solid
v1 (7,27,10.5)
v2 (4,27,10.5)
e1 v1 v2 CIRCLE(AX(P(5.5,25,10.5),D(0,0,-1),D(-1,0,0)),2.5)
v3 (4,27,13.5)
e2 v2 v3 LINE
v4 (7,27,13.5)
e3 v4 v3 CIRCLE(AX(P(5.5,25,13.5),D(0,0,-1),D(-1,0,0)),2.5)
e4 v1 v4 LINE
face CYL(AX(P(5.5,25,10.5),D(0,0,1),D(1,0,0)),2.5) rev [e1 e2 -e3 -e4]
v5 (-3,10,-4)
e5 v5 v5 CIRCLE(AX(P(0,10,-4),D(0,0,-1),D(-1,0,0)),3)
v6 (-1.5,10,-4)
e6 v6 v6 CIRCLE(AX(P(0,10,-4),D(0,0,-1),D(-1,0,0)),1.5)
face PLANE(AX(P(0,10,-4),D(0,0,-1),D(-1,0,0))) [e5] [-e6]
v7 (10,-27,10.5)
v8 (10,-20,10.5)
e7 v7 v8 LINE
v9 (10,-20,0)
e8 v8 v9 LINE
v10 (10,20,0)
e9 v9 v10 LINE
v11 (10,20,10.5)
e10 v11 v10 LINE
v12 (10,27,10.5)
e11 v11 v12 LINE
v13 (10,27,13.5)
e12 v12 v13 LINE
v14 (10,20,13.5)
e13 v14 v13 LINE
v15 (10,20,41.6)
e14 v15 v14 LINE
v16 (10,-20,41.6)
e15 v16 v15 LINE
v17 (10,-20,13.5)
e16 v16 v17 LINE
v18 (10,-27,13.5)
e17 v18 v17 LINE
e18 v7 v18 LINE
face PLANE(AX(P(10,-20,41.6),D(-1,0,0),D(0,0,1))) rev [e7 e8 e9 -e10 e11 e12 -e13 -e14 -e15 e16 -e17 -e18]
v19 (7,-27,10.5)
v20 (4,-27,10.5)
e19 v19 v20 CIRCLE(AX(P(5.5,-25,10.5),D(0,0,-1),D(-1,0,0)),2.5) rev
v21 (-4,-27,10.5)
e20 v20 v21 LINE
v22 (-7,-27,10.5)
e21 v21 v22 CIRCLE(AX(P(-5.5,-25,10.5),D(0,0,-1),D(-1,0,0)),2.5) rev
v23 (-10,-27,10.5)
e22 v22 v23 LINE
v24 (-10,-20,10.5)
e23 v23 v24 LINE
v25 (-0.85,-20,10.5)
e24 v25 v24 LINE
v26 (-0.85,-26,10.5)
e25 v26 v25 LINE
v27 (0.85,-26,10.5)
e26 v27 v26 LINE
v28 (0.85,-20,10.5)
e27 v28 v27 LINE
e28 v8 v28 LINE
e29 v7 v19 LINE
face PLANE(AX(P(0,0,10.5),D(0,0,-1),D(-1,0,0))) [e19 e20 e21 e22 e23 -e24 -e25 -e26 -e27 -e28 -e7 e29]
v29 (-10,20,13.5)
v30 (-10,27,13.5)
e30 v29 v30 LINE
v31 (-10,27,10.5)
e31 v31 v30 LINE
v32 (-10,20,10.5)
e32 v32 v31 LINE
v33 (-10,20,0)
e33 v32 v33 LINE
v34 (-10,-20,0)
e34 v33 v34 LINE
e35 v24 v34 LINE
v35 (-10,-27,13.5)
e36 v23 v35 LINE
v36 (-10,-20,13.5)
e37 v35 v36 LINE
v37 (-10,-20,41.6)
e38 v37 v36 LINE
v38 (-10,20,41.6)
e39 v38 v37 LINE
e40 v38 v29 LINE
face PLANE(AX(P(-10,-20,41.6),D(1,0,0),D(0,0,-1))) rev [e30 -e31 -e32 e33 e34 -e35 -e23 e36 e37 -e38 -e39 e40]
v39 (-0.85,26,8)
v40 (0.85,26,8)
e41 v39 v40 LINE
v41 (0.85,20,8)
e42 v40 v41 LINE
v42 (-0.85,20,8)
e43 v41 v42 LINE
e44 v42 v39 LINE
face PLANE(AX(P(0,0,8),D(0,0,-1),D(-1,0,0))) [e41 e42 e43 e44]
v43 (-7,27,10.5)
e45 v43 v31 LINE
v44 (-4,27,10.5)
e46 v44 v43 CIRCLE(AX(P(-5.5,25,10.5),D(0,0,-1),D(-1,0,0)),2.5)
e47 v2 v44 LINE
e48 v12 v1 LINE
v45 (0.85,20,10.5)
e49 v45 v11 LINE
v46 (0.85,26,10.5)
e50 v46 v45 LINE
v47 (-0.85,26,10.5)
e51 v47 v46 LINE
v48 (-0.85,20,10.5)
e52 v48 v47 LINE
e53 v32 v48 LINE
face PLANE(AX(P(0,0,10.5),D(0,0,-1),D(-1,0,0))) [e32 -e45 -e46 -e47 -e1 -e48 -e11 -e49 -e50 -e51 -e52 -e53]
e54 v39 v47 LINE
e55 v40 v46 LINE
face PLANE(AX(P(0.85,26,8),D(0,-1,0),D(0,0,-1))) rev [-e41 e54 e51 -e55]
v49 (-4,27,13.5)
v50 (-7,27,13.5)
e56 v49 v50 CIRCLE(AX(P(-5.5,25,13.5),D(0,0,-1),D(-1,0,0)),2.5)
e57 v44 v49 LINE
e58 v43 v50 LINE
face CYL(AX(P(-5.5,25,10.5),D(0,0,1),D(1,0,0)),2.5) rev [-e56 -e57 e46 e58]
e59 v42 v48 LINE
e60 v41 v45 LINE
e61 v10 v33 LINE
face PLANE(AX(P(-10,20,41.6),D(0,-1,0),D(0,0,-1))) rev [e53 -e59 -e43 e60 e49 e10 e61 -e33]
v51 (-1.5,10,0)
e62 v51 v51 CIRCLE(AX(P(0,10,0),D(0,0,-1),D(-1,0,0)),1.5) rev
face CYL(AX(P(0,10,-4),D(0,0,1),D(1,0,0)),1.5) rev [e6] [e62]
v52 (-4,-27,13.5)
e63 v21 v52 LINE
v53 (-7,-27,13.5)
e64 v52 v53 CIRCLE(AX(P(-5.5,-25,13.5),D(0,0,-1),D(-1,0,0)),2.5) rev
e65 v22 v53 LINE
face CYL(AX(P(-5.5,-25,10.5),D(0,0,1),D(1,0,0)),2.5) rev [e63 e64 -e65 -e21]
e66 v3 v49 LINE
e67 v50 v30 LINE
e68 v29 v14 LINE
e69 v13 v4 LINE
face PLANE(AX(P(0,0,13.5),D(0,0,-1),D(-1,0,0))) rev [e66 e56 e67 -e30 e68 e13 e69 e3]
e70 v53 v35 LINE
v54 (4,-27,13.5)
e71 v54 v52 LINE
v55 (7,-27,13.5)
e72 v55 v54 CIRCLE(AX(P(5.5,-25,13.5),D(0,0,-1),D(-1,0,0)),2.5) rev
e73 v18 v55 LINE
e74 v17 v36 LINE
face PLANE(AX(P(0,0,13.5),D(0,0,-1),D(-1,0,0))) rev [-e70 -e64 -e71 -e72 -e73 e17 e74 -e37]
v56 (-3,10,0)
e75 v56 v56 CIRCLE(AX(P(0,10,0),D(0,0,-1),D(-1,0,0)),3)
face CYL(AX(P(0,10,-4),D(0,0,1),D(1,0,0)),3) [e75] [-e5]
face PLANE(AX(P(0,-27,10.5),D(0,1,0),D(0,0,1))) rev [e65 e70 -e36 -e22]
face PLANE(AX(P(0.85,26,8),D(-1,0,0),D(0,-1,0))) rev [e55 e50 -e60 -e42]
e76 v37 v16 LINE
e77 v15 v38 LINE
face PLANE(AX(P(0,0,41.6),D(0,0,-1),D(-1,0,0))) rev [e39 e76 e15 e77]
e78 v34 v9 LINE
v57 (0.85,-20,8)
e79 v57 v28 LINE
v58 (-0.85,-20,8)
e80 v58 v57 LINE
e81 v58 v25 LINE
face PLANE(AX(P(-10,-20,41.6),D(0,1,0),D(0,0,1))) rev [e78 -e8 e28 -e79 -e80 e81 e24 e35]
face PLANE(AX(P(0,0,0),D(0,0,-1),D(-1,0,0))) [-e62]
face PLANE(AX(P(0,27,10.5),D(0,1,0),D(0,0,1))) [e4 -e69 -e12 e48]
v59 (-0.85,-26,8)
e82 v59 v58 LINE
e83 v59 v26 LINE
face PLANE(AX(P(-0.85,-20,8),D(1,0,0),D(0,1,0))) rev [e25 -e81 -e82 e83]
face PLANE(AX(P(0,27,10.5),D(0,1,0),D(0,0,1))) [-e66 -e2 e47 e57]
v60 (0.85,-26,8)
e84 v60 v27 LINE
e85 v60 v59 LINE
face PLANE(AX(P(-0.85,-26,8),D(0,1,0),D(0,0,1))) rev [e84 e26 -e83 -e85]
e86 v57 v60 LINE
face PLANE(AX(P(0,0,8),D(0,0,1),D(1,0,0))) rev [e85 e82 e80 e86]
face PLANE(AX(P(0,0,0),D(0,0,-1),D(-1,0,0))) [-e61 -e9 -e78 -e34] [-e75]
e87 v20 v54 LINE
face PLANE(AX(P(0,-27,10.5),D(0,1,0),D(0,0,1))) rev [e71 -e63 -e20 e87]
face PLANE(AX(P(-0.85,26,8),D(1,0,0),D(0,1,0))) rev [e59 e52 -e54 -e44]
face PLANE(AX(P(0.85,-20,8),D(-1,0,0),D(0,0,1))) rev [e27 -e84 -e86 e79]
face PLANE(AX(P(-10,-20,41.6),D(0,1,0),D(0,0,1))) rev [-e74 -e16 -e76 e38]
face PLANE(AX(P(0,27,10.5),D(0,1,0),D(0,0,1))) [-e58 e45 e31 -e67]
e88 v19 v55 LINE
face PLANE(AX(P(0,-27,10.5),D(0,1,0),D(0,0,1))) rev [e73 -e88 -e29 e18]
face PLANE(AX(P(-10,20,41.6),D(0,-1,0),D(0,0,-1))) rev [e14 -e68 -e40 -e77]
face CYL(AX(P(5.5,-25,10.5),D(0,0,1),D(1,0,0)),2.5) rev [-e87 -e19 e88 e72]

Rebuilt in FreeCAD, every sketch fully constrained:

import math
import FreeCAD as App
import Part
import Sketcher

V = App.Vector

doc = App.newDocument("Part")
body = doc.addObject("PartDesign::Body", "Body")

# Sketch on XY plane
sketch1 = doc.addObject("Sketcher::SketchObject", "Sketch")
body.addObject(sketch1)
sketch1.AttachmentSupport = (doc.XY_Plane, [""])
sketch1.MapMode = "FlatFace"
sketch1.addGeometry([
    Part.LineSegment(V(-10, 20, 0), V(-10, -20, 0)),
    Part.LineSegment(V(-10, -20, 0), V(10, -20, 0)),
    Part.LineSegment(V(10, -20, 0), V(10, 20, 0)),
    Part.LineSegment(V(10, 20, 0), V(-10, 20, 0)),
], False)
sketch1.addConstraint([
    Sketcher.Constraint("Coincident", 0, 2, 1, 1),
    Sketcher.Constraint("Coincident", 1, 2, 2, 1),
    Sketcher.Constraint("Coincident", 2, 2, 3, 1),
    Sketcher.Constraint("Coincident", 3, 2, 0, 1),
    Sketcher.Constraint("Vertical", 0),
    Sketcher.Constraint("Horizontal", 1),
    Sketcher.Constraint("Vertical", 2),
    Sketcher.Constraint("Horizontal", 3),
    Sketcher.Constraint("Symmetric", 0, 2, 2, 2, -1, 1),
    Sketcher.Constraint("DistanceX", 1, 1, 1, 2, 20.0),
    Sketcher.Constraint("DistanceY", 0, 2, 0, 1, 40.0),
])
pad1 = doc.addObject("PartDesign::Pad", "Pad")
body.addObject(pad1)
pad1.Profile = sketch1
pad1.Length = 41.6

# Sketch on XY plane
sketch2 = doc.addObject("Sketcher::SketchObject", "Sketch001")
body.addObject(sketch2)
sketch2.AttachmentSupport = (doc.XY_Plane, [""])
sketch2.MapMode = "FlatFace"
sketch2.addGeometry([
    Part.Circle(V(0, 10, 0), V(0, 0, 1), 3),
    Part.Circle(V(0, 10, 0), V(0, 0, 1), 1.5),
], False)
sketch2.addConstraint([
    Sketcher.Constraint("Coincident", 1, 3, 0, 3),
    Sketcher.Constraint("PointOnObject", 0, 3, -2),
    Sketcher.Constraint("Diameter", 0, 6.0),
    Sketcher.Constraint("Diameter", 1, 3.0),
    Sketcher.Constraint("DistanceY", -1, 1, 0, 3, 10.0),
])
pad2 = doc.addObject("PartDesign::Pad", "Pad001")
body.addObject(pad2)
pad2.Profile = sketch2
pad2.Length = 4
pad2.Reversed = True

# Sketch on XY plane
sketch3 = doc.addObject("Sketcher::SketchObject", "Sketch002")
body.addObject(sketch3)
sketch3.AttachmentSupport = (doc.XY_Plane, [""])
sketch3.MapMode = "FlatFace"
sketch3.AttachmentOffset = App.Placement(V(0, 0, 13.5), App.Rotation())
sketch3.addGeometry([
    Part.LineSegment(V(10, 27, 0), V(10, 20, 0)),  # 0
    Part.LineSegment(V(10, 20, 0), V(-10, 20, 0)),  # 1
    Part.LineSegment(V(-10, 20, 0), V(-10, 27, 0)),  # 2
    Part.LineSegment(V(-10, 27, 0), V(-7, 27, 0)),  # 3
    Part.ArcOfCircle(Part.Circle(V(-5.5, 25, 0), V(0, 0, 1), 2.5), math.radians(127), math.radians(180)),  # 4
    Part.ArcOfCircle(Part.Circle(V(-5.5, 25, 0), V(0, 0, 1), 2.5), math.radians(180), math.radians(413)),  # 5
    Part.LineSegment(V(-4, 27, 0), V(4, 27, 0)),  # 6
    Part.ArcOfCircle(Part.Circle(V(5.5, 25, 0), V(0, 0, 1), 2.5), math.radians(127), math.radians(180)),  # 7
    Part.ArcOfCircle(Part.Circle(V(5.5, 25, 0), V(0, 0, 1), 2.5), math.radians(180), math.radians(413)),  # 8
    Part.LineSegment(V(7, 27, 0), V(10, 27, 0)),  # 9
    Part.LineSegment(V(-10, -20, 0), V(10, -20, 0)),  # 10
    Part.LineSegment(V(10, -20, 0), V(10, -27, 0)),  # 11
    Part.LineSegment(V(10, -27, 0), V(7, -27, 0)),  # 12
    Part.ArcOfCircle(Part.Circle(V(5.5, -25, 0), V(0, 0, 1), 2.5), math.radians(-53), math.radians(180)),  # 13
    Part.ArcOfCircle(Part.Circle(V(5.5, -25, 0), V(0, 0, 1), 2.5), math.radians(-180), math.radians(-127)),  # 14
    Part.LineSegment(V(4, -27, 0), V(-4, -27, 0)),  # 15
    Part.ArcOfCircle(Part.Circle(V(-5.5, -25, 0), V(0, 0, 1), 2.5), math.radians(-53), math.radians(180)),  # 16
    Part.ArcOfCircle(Part.Circle(V(-5.5, -25, 0), V(0, 0, 1), 2.5), math.radians(-180), math.radians(-127)),  # 17
    Part.LineSegment(V(-7, -27, 0), V(-10, -27, 0)),  # 18
    Part.LineSegment(V(-10, -27, 0), V(-10, -20, 0)),  # 19
], False)
sketch3.addConstraint([
    Sketcher.Constraint("Coincident", 0, 2, 1, 1),
    Sketcher.Constraint("Coincident", 1, 2, 2, 1),
    Sketcher.Constraint("Coincident", 2, 2, 3, 1),
    Sketcher.Constraint("Coincident", 3, 2, 4, 1),
    Sketcher.Constraint("Tangent", 4, 2, 5, 1),
    Sketcher.Constraint("Coincident", 5, 2, 6, 1),
    Sketcher.Constraint("Coincident", 6, 2, 7, 1),
    Sketcher.Constraint("Tangent", 7, 2, 8, 1),
    Sketcher.Constraint("Coincident", 8, 2, 9, 1),
    Sketcher.Constraint("Coincident", 9, 2, 0, 1),
    Sketcher.Constraint("Coincident", 10, 2, 11, 1),
    Sketcher.Constraint("Coincident", 11, 2, 12, 1),
    Sketcher.Constraint("Coincident", 12, 2, 13, 1),
    Sketcher.Constraint("Tangent", 13, 2, 14, 1),
    Sketcher.Constraint("Coincident", 14, 2, 15, 1),
    Sketcher.Constraint("Coincident", 15, 2, 16, 1),
    Sketcher.Constraint("Tangent", 16, 2, 17, 1),
    Sketcher.Constraint("Coincident", 17, 2, 18, 1),
    Sketcher.Constraint("Coincident", 18, 2, 19, 1),
    Sketcher.Constraint("Coincident", 19, 2, 10, 1),
    Sketcher.Constraint("Vertical", 0),
    Sketcher.Constraint("Horizontal", 1),
    Sketcher.Constraint("Vertical", 2),
    Sketcher.Constraint("Horizontal", 3),
    Sketcher.Constraint("Horizontal", 6),
    Sketcher.Constraint("Horizontal", 9),
    Sketcher.Constraint("Horizontal", 10),
    Sketcher.Constraint("Vertical", 11),
    Sketcher.Constraint("Horizontal", 12),
    Sketcher.Constraint("Horizontal", 15),
    Sketcher.Constraint("Horizontal", 18),
    Sketcher.Constraint("Vertical", 19),
    Sketcher.Constraint("Equal", 4, 5),
    Sketcher.Constraint("Equal", 5, 7),
    Sketcher.Constraint("Equal", 7, 8),
    Sketcher.Constraint("Equal", 8, 13),
    Sketcher.Constraint("Equal", 13, 14),
    Sketcher.Constraint("Equal", 14, 16),
    Sketcher.Constraint("Equal", 16, 17),
    Sketcher.Constraint("Symmetric", 4, 3, 13, 3, -1, 1),
    Sketcher.Constraint("Symmetric", 7, 3, 16, 3, -1, 1),
    Sketcher.Constraint("Symmetric", 1, 2, 10, 2, -1, 1),
    Sketcher.Constraint("Symmetric", 9, 2, 18, 2, -1, 1),
    Sketcher.Constraint("Symmetric", 4, 3, 7, 3, -2),
    Sketcher.Constraint("Symmetric", 2, 2, 9, 2, -2),
    Sketcher.Constraint("Horizontal", 8, 3, 4, 2),
    Sketcher.Constraint("Horizontal", 3, 2, 5, 2),
    Sketcher.Constraint("Horizontal", 4, 2, 7, 2),
    Sketcher.Constraint("Horizontal", 17, 3, 13, 2),
    Sketcher.Constraint("Horizontal", 12, 2, 14, 2),
    Sketcher.Constraint("Horizontal", 13, 2, 16, 2),
    Sketcher.Constraint("Horizontal", 15, 2, 17, 2),
    Sketcher.Constraint("Radius", 4, 2.5),
    Sketcher.Constraint("DistanceX", 1, 2, 1, 1, 20.0),
    Sketcher.Constraint("DistanceX", 3, 1, 3, 2, 3.0),
    Sketcher.Constraint("DistanceX", 6, 1, 6, 2, 8.0),
    Sketcher.Constraint("DistanceY", 0, 2, 0, 1, 7.0),
    Sketcher.Constraint("DistanceY", -1, 1, 4, 3, 25.0),
])
pad3 = doc.addObject("PartDesign::Pad", "Pad002")
body.addObject(pad3)
pad3.Profile = sketch3
pad3.Length = 3
pad3.Reversed = True

# Sketch on XY plane
sketch4 = doc.addObject("Sketcher::SketchObject", "Sketch003")
body.addObject(sketch4)
sketch4.AttachmentSupport = (doc.XY_Plane, [""])
sketch4.MapMode = "FlatFace"
sketch4.AttachmentOffset = App.Placement(V(0, 0, 10.5), App.Rotation())
sketch4.addGeometry([
    Part.LineSegment(V(0.8, 26, 0), V(0.8, 20, 0)),  # 0
    Part.LineSegment(V(0.8, 20, 0), V(-0.8, 20, 0)),  # 1
    Part.LineSegment(V(-0.8, 20, 0), V(-0.8, 26, 0)),  # 2
    Part.LineSegment(V(-0.8, 26, 0), V(0.8, 26, 0)),  # 3
    Part.LineSegment(V(0.8, -20, 0), V(0.8, -26, 0)),  # 4
    Part.LineSegment(V(0.8, -26, 0), V(-0.8, -26, 0)),  # 5
    Part.LineSegment(V(-0.8, -26, 0), V(-0.8, -20, 0)),  # 6
    Part.LineSegment(V(-0.8, -20, 0), V(0.8, -20, 0)),  # 7
], False)
sketch4.addConstraint([
    Sketcher.Constraint("Coincident", 0, 2, 1, 1),
    Sketcher.Constraint("Coincident", 1, 2, 2, 1),
    Sketcher.Constraint("Coincident", 2, 2, 3, 1),
    Sketcher.Constraint("Coincident", 3, 2, 0, 1),
    Sketcher.Constraint("Coincident", 4, 2, 5, 1),
    Sketcher.Constraint("Coincident", 5, 2, 6, 1),
    Sketcher.Constraint("Coincident", 6, 2, 7, 1),
    Sketcher.Constraint("Coincident", 7, 2, 4, 1),
    Sketcher.Constraint("Vertical", 0),
    Sketcher.Constraint("Horizontal", 1),
    Sketcher.Constraint("Vertical", 2),
    Sketcher.Constraint("Horizontal", 3),
    Sketcher.Constraint("Vertical", 4),
    Sketcher.Constraint("Horizontal", 5),
    Sketcher.Constraint("Vertical", 6),
    Sketcher.Constraint("Horizontal", 7),
    Sketcher.Constraint("Symmetric", 2, 2, 4, 2, -1, 1),
    Sketcher.Constraint("Symmetric", 0, 2, 6, 2, -1, 1),
    Sketcher.Constraint("Vertical", 3, 2, 4, 2),
    Sketcher.Constraint("DistanceY", 0, 2, 0, 1, 6.0),
    Sketcher.Constraint("DistanceX", 1, 2, 1, 1, 1.7),
    Sketcher.Constraint("DistanceY", -1, 1, 0, 2, 20.0),
])
pad4 = doc.addObject("PartDesign::Pad", "Pad003")
body.addObject(pad4)
pad4.Profile = sketch4
pad4.Length = 2.5
pad4.Reversed = True

doc.recompute()
